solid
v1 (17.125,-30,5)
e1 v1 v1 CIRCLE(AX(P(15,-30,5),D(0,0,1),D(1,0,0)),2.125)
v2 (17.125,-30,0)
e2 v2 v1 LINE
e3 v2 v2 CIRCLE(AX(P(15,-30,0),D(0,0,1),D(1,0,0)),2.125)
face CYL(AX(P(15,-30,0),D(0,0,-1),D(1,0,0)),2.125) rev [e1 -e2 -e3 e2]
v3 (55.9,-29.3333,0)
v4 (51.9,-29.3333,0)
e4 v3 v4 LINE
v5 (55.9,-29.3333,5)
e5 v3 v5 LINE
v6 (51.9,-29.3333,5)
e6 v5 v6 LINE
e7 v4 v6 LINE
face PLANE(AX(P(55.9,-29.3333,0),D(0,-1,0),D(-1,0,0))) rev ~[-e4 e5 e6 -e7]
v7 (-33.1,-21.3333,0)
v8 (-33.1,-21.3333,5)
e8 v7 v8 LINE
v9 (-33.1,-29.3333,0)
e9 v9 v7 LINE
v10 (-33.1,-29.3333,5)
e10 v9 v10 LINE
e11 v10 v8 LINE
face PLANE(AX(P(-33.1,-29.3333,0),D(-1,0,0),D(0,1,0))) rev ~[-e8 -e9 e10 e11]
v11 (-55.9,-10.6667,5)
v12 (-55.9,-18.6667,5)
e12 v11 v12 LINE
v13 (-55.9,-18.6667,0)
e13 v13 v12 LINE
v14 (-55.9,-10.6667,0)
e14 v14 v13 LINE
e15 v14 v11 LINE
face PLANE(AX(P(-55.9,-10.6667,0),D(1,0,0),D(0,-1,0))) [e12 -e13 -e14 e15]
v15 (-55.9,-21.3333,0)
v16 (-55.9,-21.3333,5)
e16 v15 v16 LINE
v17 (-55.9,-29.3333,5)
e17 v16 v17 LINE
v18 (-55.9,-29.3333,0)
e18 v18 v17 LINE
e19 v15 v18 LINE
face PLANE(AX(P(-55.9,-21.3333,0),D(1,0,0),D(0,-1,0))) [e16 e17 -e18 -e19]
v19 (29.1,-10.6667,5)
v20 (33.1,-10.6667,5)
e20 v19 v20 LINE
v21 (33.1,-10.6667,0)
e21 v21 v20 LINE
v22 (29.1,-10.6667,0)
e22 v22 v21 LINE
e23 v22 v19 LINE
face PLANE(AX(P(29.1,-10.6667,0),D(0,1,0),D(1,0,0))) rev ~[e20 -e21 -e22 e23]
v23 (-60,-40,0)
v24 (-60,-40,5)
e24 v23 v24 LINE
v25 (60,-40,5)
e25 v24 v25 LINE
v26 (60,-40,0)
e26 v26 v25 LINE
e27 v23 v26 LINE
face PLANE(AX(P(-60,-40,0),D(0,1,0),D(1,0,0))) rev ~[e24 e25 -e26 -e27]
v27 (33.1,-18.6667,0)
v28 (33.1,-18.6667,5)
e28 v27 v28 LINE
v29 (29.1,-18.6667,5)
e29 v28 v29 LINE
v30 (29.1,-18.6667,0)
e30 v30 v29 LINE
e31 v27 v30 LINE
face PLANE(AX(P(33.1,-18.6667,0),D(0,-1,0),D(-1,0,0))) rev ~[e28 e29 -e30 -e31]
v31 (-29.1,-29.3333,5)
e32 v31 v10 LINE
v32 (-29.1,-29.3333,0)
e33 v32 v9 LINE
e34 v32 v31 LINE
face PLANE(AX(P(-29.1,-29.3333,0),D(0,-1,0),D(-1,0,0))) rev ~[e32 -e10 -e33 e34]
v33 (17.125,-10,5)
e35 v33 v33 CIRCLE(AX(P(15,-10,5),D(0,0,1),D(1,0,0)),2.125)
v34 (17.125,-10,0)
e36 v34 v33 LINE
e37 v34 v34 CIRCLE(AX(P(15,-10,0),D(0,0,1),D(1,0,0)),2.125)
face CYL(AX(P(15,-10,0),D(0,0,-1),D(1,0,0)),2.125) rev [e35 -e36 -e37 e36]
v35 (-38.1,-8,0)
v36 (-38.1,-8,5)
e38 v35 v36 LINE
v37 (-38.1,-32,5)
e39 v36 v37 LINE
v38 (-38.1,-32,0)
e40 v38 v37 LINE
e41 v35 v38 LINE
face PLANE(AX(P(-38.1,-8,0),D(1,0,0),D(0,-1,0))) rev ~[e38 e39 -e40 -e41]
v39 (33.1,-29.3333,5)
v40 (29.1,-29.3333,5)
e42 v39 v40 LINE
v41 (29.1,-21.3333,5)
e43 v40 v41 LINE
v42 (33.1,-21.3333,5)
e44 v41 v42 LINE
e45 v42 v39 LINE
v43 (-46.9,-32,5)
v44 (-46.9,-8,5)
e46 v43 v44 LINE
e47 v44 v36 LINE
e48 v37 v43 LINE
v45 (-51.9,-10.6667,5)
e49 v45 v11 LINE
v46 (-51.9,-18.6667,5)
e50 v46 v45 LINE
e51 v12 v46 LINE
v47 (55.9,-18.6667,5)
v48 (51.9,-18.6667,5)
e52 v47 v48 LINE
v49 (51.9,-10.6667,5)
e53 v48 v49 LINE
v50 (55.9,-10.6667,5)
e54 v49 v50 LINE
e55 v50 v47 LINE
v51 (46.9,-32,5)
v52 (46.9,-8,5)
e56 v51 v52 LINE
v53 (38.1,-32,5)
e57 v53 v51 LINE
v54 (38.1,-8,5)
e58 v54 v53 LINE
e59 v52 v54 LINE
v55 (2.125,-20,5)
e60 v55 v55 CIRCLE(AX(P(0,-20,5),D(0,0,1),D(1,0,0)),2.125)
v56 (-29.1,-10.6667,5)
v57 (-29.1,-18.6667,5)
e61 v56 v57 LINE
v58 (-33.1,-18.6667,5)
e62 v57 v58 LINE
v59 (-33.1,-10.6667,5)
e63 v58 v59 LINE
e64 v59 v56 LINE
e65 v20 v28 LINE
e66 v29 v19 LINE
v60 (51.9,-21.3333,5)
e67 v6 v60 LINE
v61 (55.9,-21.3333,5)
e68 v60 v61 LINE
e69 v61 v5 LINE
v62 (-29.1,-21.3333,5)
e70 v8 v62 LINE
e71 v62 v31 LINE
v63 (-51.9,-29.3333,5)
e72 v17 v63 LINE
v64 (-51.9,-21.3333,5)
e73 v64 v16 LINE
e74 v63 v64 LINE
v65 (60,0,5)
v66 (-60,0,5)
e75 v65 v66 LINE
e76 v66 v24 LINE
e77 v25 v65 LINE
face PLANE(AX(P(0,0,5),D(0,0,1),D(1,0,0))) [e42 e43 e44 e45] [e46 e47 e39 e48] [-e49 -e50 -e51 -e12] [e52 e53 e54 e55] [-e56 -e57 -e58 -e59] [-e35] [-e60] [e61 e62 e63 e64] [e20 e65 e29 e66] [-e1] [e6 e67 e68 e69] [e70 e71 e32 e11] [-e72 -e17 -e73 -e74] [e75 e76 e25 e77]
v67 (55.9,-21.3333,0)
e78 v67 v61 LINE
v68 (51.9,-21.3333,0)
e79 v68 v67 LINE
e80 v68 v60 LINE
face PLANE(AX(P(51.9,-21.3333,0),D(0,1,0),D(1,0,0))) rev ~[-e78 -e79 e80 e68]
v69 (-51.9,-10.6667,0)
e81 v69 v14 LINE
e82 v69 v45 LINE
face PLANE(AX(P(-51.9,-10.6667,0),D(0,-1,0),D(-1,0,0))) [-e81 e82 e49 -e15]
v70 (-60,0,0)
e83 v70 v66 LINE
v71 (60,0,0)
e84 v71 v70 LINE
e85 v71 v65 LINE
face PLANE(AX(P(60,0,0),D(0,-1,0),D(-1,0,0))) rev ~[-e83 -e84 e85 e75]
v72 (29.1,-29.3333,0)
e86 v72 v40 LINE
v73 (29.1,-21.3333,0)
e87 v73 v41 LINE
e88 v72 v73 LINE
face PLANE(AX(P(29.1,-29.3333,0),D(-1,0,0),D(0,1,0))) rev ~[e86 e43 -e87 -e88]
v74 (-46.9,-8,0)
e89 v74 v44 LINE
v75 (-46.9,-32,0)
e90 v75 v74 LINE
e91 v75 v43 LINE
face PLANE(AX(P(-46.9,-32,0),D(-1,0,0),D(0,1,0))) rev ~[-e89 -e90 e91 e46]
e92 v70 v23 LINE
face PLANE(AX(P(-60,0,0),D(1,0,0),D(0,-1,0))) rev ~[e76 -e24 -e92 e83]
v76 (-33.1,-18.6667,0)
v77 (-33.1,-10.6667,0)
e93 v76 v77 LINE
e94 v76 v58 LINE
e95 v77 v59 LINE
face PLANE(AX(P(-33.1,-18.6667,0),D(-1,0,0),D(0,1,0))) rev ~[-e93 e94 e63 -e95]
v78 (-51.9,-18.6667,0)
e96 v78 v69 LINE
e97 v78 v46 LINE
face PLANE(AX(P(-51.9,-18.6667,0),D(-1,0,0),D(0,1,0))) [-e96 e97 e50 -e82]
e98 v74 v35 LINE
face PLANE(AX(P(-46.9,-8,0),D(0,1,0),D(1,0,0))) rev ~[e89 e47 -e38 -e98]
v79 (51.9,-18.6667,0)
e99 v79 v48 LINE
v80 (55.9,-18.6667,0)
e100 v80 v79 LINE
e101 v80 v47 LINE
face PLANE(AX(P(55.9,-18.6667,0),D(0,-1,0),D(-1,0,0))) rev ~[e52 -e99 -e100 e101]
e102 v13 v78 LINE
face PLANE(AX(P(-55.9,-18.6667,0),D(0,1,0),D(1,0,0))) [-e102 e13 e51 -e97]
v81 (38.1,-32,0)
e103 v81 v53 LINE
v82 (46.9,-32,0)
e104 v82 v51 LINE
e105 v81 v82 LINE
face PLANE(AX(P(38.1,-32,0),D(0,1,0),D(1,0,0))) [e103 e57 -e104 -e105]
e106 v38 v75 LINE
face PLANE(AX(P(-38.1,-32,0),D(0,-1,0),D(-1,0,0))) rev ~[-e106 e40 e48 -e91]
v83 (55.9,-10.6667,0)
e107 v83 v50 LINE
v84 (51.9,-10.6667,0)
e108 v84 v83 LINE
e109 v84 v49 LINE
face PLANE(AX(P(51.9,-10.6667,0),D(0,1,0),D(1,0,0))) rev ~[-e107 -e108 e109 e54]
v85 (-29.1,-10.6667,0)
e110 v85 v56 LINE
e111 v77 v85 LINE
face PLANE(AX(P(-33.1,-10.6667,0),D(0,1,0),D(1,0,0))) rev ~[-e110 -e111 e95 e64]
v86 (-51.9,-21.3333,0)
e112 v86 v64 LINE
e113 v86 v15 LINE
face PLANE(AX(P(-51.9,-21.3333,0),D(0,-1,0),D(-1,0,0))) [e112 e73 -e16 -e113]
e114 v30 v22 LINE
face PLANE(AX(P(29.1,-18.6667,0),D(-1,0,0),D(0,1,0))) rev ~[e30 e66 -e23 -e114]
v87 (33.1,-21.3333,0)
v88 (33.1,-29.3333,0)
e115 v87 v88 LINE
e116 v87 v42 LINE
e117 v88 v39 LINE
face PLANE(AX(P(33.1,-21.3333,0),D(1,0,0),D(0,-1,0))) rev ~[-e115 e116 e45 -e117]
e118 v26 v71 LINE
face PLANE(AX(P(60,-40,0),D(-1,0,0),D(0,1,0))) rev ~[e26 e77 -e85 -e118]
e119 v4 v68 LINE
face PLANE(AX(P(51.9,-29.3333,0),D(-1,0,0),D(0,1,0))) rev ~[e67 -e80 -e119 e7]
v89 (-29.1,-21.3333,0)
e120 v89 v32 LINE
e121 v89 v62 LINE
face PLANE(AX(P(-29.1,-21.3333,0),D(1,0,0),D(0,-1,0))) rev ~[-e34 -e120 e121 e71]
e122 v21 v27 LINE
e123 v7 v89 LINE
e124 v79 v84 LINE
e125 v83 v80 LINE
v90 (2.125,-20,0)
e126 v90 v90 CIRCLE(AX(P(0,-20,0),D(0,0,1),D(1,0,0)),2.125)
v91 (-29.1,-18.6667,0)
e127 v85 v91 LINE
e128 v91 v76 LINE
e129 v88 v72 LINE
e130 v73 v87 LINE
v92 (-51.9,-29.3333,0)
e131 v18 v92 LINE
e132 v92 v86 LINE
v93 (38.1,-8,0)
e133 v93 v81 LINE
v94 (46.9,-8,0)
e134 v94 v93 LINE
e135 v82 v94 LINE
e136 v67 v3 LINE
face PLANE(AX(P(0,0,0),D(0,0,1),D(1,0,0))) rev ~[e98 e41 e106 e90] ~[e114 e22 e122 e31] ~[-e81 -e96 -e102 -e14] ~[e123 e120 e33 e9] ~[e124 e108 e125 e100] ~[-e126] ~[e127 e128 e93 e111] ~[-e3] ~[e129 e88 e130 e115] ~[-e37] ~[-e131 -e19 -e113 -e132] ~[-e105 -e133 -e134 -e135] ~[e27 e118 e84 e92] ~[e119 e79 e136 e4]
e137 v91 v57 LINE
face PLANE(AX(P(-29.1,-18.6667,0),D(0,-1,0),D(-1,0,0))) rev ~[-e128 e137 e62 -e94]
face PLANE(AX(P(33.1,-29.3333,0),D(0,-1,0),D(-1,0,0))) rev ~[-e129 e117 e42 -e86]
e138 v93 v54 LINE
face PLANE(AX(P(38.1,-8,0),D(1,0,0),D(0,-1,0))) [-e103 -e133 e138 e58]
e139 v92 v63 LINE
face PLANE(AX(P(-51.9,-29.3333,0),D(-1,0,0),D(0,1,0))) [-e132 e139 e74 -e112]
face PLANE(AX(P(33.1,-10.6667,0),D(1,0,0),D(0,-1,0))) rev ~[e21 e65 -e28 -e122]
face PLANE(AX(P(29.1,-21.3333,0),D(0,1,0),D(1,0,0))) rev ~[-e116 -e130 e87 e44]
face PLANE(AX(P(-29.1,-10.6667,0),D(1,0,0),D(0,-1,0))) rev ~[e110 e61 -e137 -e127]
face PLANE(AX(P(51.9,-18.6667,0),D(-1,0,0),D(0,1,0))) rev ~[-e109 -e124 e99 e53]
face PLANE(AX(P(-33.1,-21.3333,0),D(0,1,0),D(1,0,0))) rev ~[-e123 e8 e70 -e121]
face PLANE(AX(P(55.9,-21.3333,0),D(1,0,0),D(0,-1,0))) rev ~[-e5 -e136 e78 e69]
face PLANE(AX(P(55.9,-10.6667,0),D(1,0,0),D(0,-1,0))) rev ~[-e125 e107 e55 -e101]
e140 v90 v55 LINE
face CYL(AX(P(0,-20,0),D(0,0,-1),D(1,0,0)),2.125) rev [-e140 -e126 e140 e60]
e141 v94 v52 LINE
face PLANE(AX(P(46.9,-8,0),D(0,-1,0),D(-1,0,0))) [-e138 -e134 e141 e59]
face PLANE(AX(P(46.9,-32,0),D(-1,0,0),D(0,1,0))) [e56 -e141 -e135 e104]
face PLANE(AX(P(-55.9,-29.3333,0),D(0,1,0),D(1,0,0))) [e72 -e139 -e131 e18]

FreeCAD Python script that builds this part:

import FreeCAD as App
import Part
import Sketcher
Q = App.Units.Quantity


def add_polygon(sketch, points):
    """Adds a closed chain of lines whose ends are joined by coincident constraints."""
    first, n = sketch.GeometryCount, len(points)
    for a, b in zip(points, points[1:] + points[:1]):
        sketch.addGeometry(Part.LineSegment(App.Vector(*a, 0), App.Vector(*b, 0)), False)
    for i in range(n):
        sketch.addConstraint(Sketcher.Constraint("Coincident", first + i, 2, first + (i + 1) % n, 1))

doc = App.newDocument("Part")
body = doc.addObject("PartDesign::Body", "Body")

# Sketch on XY plane
sketch1 = doc.addObject("Sketcher::SketchObject", "Sketch")
body.addObject(sketch1)
sketch1.AttachmentSupport = (doc.XY_Plane, [""])
sketch1.MapMode = "FlatFace"
add_polygon(sketch1, [(60, -40), (60, 0), (-60, 0), (-60, -40)])  # lines 0-3
add_polygon(sketch1, [(-51.9, -29.3), (-55.9, -29.3), (-55.9, -21.3), (-51.9, -21.3)])  # lines 4-7
add_polygon(sketch1, [(-33.1, -29.3), (-33.1, -21.3), (-29.1, -21.3), (-29.1, -29.3)])  # lines 8-11
sketch1.addGeometry(Part.Circle(App.Vector(15, -30, 0), App.Vector(0, 0, 1), 2.1), False)  # 12
add_polygon(sketch1, [(29.1, -29.3), (29.1, -21.3), (33.1, -21.3), (33.1, -29.3)])  # lines 13-16
add_polygon(sketch1, [(51.9, -29.3), (51.9, -21.3), (55.9, -21.3), (55.9, -29.3)])  # lines 17-20
add_polygon(sketch1, [(-46.9, -32), (-46.9, -8), (-38.1, -8), (-38.1, -32)])  # lines 21-24
add_polygon(sketch1, [(-55.9, -10.7), (-51.9, -10.7), (-51.9, -18.7), (-55.9, -18.7)])  # lines 25-28
add_polygon(sketch1, [(-33.1, -18.7), (-33.1, -10.7), (-29.1, -10.7), (-29.1, -18.7)])  # lines 29-32
sketch1.addGeometry(Part.Circle(App.Vector(0, -20, 0), App.Vector(0, 0, 1), 2.1), False)  # 33
add_polygon(sketch1, [(38.1, -8), (46.9, -8), (46.9, -32), (38.1, -32)])  # lines 34-37
add_polygon(sketch1, [(29.1, -18.7), (29.1, -10.7), (33.1, -10.7), (33.1, -18.7)])  # lines 38-41
add_polygon(sketch1, [(51.9, -18.7), (51.9, -10.7), (55.9, -10.7), (55.9, -18.7)])  # lines 42-45
sketch1.addGeometry(Part.Circle(App.Vector(15, -10, 0), App.Vector(0, 0, 1), 2.1), False)  # 46
sketch1.addConstraint([
    Sketcher.Constraint("Vertical", 0),
    Sketcher.Constraint("Horizontal", 1),
    Sketcher.Constraint("Vertical", 2),
    Sketcher.Constraint("Horizontal", 3),
    Sketcher.Constraint("Horizontal", 4),
    Sketcher.Constraint("Vertical", 5),
    Sketcher.Constraint("Horizontal", 6),
    Sketcher.Constraint("Vertical", 7),
    Sketcher.Constraint("Vertical", 8),
    Sketcher.Constraint("Horizontal", 9),
    Sketcher.Constraint("Vertical", 10),
    Sketcher.Constraint("Horizontal", 11),
    Sketcher.Constraint("Vertical", 13),
    Sketcher.Constraint("Horizontal", 14),
    Sketcher.Constraint("Vertical", 15),
    Sketcher.Constraint("Horizontal", 16),
    Sketcher.Constraint("Vertical", 17),
    Sketcher.Constraint("Horizontal", 18),
    Sketcher.Constraint("Vertical", 19),
    Sketcher.Constraint("Horizontal", 20),
    Sketcher.Constraint("Vertical", 21),
    Sketcher.Constraint("Horizontal", 22),
    Sketcher.Constraint("Vertical", 23),
    Sketcher.Constraint("Horizontal", 24),
    Sketcher.Constraint("Horizontal", 25),
    Sketcher.Constraint("Vertical", 26),
    Sketcher.Constraint("Horizontal", 27),
    Sketcher.Constraint("Vertical", 28),
    Sketcher.Constraint("Vertical", 29),
    Sketcher.Constraint("Horizontal", 30),
    Sketcher.Constraint("Vertical", 31),
    Sketcher.Constraint("Horizontal", 32),
    Sketcher.Constraint("Horizontal", 34),
    Sketcher.Constraint("Vertical", 35),
    Sketcher.Constraint("Horizontal", 36),
    Sketcher.Constraint("Vertical", 37),
    Sketcher.Constraint("Vertical", 38),
    Sketcher.Constraint("Horizontal", 39),
    Sketcher.Constraint("Vertical", 40),
    Sketcher.Constraint("Horizontal", 41),
    Sketcher.Constraint("Vertical", 42),
    Sketcher.Constraint("Horizontal", 43),
    Sketcher.Constraint("Vertical", 44),
    Sketcher.Constraint("Horizontal", 45),
    Sketcher.Constraint("Equal", 12, 33),
    Sketcher.Constraint("Equal", 33, 46),
    Sketcher.Constraint("Symmetric", 0, 2, 1, 2, -1, 1),
    Sketcher.Constraint("Symmetric", 9, 2, 13, 2, -2),
    Sketcher.Constraint("Symmetric", 11, 2, 15, 2, -2),
    Sketcher.Constraint("Symmetric", 6, 2, 17, 2, -2),
    Sketcher.Constraint("Symmetric", 4, 2, 19, 2, -2),
    Sketcher.Constraint("Symmetric", 21, 2, 34, 2, -2),
    Sketcher.Constraint("Symmetric", 23, 2, 36, 2, -2),
    Sketcher.Constraint("Symmetric", 30, 2, 38, 2, -2),
    Sketcher.Constraint("Symmetric", 32, 2, 40, 2, -2),
    Sketcher.Constraint("Symmetric", 25, 2, 42, 2, -2),
    Sketcher.Constraint("Symmetric", 27, 2, 44, 2, -2),
    Sketcher.Constraint("PointOnObject", 33, 3, -2),
    Sketcher.Constraint("Horizontal", 6, 2, 8, 2),
    Sketcher.Constraint("Horizontal", 7, 2, 10, 2),
    Sketcher.Constraint("Horizontal", 28, 2, 29, 2),
    Sketcher.Constraint("Horizontal", 27, 2, 31, 2),
    Sketcher.Constraint("Vertical", 12, 3, 46, 3),
    Sketcher.Constraint("Vertical", 7, 2, 25, 2),
    Sketcher.Constraint("Vertical", 5, 2, 27, 2),
    Sketcher.Constraint("Vertical", 11, 2, 29, 2),
    Sketcher.Constraint("Vertical", 10, 2, 30, 2),
    Sketcher.Constraint("Equal", 6, 9),
    Sketcher.Constraint("Equal", 19, 26),
    Sketcher.Constraint("Diameter", 12, Q("4.25 mm")),
    Sketcher.Constraint("DistanceX", 1, 2, 1, 1, Q("120 mm")),
    Sketcher.Constraint("DistanceX", 4, 2, 4, 1, Q("4 mm")),
    Sketcher.Constraint("DistanceY", 0, 1, 0, 2, Q("40 mm")),
    Sketcher.Constraint("DistanceY", 5, 1, 5, 2, Q("8 mm")),
    Sketcher.Constraint("DistanceY", 21, 1, 21, 2, Q("24 mm")),
    Sketcher.Constraint("DistanceX", 22, 1, 22, 2, Q("8.8 mm")),
    Sketcher.Constraint("DistanceY", 33, 3, -1, 1, Q("20 mm")),
    Sketcher.Constraint("DistanceY", 21, 2, -1, 1, Q("8 mm")),
    Sketcher.Constraint("DistanceY", 12, 3, 46, 3, Q("20 mm")),
    Sketcher.Constraint("DistanceX", 46, 3, 0, 2, Q("45 mm")),
    Sketcher.Constraint("DistanceX", 6, 2, 21, 2, Q("5 mm")),
    Sketcher.Constraint("DistanceX", 22, 2, 8, 2, Q("5 mm")),
    Sketcher.Constraint("DistanceY", 12, 3, -1, 1, Q("30 mm")),
    Sketcher.Constraint("DistanceX", 4, 2, -1, 1, Q("55.9 mm")),
    Sketcher.Constraint("DistanceY", 4, 2, -1, 1, Q("29.3333 mm")),
    Sketcher.Constraint("DistanceY", 25, 2, -1, 1, Q("10.6667 mm")),
])
pad1 = doc.addObject("PartDesign::Pad", "Pad")
body.addObject(pad1)
pad1.Profile = sketch1
pad1.Length = 5

doc.recompute()
